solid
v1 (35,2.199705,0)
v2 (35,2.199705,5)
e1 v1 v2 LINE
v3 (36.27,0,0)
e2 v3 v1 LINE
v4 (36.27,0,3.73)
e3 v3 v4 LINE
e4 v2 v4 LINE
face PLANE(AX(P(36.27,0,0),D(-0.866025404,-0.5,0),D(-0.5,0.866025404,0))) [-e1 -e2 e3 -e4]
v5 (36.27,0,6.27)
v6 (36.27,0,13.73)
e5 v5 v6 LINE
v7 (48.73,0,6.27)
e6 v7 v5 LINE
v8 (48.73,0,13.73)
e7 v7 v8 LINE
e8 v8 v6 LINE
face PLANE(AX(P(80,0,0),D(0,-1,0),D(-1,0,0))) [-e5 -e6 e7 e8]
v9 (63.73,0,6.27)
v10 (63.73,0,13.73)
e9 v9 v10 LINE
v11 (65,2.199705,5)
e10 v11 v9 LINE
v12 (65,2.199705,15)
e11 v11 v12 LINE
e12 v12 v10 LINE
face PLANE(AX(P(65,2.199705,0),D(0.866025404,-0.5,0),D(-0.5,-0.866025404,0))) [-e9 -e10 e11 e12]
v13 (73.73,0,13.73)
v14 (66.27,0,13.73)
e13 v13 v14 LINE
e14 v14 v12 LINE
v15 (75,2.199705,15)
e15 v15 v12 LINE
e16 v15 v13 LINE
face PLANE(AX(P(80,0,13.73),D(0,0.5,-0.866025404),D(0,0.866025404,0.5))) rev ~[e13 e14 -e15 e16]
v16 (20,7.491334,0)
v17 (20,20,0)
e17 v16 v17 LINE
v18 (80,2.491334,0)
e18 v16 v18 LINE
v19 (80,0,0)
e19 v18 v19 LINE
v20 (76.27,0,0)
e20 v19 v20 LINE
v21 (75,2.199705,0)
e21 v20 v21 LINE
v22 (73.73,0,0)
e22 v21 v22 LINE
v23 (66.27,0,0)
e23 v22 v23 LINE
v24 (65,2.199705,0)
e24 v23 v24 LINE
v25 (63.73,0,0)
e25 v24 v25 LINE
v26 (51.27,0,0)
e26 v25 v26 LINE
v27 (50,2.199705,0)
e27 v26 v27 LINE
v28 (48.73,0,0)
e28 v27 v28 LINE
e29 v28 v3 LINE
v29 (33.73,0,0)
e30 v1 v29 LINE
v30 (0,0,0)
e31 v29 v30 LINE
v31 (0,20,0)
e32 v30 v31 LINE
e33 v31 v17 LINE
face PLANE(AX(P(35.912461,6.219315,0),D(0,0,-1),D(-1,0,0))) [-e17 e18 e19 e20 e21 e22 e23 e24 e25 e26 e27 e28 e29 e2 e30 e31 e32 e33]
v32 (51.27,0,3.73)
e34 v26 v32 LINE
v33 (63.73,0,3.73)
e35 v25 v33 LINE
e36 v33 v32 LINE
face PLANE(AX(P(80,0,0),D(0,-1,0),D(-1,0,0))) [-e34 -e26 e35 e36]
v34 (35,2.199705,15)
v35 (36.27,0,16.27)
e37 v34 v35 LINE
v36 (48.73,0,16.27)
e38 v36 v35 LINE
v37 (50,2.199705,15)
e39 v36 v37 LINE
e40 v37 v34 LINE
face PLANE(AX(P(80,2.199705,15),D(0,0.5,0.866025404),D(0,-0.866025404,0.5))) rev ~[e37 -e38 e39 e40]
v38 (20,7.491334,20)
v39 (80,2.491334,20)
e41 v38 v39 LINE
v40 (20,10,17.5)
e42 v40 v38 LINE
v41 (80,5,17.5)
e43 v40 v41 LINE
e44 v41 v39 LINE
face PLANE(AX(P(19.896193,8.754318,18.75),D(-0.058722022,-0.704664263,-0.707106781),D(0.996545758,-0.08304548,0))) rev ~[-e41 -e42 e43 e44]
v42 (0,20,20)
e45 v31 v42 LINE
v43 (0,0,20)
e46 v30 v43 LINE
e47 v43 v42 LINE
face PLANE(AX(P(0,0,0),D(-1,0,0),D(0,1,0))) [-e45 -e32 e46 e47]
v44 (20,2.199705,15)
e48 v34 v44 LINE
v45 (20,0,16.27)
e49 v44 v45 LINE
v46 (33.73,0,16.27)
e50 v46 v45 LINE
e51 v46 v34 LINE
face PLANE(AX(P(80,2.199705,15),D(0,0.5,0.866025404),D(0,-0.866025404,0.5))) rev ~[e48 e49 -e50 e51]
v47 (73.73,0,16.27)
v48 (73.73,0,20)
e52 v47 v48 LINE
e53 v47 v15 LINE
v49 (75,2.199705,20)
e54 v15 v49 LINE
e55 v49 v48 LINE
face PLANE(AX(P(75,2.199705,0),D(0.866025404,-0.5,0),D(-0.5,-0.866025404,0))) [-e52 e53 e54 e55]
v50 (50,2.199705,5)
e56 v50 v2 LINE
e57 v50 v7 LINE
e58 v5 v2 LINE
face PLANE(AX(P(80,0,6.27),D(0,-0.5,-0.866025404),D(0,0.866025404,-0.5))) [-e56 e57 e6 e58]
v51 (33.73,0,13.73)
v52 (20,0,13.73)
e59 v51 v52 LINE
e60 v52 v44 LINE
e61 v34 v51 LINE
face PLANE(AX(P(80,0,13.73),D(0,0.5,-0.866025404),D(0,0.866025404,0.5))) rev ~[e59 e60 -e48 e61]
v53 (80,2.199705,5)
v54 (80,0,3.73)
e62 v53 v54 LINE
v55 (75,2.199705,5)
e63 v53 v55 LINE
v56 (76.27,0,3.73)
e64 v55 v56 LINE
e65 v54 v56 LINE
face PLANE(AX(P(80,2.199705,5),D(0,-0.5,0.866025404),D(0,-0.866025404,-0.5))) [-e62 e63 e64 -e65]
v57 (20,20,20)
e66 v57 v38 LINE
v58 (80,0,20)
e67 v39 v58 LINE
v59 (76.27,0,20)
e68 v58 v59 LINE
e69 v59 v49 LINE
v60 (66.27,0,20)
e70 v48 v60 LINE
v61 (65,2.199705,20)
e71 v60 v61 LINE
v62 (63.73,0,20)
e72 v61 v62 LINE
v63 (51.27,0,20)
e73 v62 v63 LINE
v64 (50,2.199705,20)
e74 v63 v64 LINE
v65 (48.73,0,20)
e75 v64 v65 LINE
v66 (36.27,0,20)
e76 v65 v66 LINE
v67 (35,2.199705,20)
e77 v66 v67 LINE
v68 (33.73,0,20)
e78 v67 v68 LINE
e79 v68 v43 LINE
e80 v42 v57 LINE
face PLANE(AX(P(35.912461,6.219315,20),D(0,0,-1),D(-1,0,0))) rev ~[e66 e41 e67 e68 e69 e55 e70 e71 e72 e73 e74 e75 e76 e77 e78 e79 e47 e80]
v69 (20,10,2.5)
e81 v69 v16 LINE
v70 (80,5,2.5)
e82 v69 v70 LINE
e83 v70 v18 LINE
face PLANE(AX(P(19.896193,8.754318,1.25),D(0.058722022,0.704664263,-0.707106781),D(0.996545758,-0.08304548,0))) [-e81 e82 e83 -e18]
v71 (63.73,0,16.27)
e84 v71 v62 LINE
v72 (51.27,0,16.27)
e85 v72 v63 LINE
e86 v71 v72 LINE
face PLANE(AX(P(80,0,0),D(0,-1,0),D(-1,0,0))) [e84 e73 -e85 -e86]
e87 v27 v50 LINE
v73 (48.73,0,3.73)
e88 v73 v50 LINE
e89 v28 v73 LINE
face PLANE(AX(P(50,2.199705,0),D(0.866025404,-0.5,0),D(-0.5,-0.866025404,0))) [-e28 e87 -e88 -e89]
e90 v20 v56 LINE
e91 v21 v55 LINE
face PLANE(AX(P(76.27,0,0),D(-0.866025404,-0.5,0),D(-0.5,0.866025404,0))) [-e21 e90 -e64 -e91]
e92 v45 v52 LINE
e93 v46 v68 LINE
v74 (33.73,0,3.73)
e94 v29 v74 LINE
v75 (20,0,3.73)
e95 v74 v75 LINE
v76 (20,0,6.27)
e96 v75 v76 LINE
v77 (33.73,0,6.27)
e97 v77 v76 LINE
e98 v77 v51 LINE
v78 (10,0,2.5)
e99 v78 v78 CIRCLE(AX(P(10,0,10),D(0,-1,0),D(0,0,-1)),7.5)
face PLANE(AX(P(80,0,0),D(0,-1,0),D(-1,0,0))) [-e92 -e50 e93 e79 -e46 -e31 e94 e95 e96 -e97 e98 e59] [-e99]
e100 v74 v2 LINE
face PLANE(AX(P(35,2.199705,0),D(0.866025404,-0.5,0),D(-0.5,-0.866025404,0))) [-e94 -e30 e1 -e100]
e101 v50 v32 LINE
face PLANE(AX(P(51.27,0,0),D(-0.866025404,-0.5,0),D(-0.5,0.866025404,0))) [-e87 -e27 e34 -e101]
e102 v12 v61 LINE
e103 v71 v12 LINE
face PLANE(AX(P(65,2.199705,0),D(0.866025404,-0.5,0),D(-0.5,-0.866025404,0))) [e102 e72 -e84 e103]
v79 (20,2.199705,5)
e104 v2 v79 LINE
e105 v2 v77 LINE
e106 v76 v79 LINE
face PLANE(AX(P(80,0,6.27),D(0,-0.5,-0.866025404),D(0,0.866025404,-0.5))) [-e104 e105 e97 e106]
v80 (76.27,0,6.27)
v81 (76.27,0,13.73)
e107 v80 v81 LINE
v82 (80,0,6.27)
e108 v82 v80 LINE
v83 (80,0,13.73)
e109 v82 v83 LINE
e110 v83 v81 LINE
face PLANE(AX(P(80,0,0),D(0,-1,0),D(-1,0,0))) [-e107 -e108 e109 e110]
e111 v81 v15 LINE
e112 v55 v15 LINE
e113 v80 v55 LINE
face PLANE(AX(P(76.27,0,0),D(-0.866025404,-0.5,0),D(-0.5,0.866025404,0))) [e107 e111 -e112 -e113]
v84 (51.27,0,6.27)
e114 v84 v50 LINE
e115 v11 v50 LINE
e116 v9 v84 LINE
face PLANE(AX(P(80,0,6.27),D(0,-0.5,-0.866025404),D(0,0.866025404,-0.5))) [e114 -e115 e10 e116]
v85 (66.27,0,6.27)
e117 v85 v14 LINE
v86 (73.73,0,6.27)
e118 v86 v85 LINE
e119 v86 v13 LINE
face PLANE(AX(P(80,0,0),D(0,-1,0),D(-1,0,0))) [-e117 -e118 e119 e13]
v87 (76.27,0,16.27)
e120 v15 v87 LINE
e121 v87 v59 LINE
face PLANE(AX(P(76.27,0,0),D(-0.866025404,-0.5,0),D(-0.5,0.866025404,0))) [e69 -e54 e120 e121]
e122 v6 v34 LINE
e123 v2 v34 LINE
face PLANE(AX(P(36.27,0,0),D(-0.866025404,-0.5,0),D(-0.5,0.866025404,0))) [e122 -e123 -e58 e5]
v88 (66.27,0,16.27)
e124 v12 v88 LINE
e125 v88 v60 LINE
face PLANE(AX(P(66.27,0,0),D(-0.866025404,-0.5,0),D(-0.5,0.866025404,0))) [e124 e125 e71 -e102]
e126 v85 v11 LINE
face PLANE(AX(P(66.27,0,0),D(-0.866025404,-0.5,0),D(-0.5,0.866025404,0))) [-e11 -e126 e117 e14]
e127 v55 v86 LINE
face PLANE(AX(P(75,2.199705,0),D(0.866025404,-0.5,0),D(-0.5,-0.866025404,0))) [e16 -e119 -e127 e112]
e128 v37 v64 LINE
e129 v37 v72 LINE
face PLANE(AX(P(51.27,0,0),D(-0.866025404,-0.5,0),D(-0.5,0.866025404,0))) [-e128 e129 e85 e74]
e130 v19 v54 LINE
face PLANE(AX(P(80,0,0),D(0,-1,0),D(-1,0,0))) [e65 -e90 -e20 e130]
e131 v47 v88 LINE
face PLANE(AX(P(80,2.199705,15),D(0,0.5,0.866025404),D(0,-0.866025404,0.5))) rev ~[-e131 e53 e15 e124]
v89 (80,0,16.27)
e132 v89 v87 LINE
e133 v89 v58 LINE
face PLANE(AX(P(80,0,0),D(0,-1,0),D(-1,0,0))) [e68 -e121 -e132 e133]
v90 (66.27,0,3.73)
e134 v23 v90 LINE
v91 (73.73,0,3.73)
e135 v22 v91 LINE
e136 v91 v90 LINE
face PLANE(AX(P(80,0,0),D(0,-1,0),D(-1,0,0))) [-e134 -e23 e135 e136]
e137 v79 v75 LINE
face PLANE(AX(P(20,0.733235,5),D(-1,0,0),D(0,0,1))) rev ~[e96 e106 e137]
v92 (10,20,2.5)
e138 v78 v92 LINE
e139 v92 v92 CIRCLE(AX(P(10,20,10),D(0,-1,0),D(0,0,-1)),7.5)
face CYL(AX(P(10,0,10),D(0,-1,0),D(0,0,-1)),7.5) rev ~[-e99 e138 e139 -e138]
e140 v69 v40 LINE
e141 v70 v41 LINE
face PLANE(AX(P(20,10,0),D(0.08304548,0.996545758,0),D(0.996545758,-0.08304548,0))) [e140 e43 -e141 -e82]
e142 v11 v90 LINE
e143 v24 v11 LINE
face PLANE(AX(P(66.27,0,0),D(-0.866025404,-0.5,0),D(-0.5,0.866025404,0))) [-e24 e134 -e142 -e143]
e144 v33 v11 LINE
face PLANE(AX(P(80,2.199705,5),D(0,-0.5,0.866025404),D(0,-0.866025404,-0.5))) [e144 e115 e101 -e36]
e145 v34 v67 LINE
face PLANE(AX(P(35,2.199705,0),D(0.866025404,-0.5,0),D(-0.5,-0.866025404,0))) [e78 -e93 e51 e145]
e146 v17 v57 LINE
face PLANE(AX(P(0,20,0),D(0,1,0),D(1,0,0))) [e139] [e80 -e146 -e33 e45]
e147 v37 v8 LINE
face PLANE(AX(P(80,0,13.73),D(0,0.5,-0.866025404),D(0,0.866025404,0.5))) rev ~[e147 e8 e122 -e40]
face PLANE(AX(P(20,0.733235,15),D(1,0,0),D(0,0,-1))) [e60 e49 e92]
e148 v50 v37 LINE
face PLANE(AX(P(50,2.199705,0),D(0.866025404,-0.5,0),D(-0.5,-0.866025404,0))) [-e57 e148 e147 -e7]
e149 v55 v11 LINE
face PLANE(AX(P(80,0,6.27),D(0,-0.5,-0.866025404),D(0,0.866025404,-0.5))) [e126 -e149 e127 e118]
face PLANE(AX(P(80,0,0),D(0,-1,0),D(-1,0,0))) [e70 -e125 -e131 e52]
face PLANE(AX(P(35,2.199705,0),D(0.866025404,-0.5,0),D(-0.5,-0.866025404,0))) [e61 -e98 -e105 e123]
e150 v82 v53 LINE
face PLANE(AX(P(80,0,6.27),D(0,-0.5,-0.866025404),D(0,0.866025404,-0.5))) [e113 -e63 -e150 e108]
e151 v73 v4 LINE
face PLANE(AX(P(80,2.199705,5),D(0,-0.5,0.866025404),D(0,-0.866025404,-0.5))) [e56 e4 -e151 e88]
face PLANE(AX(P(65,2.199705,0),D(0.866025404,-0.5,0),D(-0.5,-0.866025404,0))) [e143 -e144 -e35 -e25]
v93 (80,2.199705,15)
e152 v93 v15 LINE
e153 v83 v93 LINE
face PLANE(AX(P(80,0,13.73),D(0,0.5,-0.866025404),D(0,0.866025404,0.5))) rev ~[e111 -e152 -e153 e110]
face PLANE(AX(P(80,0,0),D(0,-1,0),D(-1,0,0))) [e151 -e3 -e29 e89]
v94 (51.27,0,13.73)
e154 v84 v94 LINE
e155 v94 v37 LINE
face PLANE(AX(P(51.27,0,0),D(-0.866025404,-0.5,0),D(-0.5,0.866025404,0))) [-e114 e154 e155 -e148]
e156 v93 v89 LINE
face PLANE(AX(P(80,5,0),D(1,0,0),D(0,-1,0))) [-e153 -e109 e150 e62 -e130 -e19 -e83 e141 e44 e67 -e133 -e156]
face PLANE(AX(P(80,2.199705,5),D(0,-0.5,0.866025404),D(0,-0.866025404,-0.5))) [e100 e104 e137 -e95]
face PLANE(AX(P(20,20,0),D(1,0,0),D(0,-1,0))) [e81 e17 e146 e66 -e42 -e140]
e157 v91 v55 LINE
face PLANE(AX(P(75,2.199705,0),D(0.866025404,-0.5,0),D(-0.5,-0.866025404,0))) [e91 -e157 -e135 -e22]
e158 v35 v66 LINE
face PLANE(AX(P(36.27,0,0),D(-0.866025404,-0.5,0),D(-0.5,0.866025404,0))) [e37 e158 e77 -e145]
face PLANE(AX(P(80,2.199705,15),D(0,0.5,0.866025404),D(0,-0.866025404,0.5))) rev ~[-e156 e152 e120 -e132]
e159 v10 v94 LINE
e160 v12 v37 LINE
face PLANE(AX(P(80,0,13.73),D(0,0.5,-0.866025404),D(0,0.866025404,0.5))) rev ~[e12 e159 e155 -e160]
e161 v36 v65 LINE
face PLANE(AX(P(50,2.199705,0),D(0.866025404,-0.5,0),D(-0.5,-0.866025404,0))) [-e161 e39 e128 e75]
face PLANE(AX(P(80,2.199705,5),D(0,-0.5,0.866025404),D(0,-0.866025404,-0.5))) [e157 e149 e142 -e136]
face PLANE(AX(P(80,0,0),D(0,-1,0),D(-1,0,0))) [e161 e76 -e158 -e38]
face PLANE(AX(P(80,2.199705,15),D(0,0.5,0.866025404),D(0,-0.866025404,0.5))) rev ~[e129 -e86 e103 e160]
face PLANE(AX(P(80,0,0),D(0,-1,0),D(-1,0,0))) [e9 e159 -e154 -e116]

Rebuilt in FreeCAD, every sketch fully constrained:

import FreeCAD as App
import Part
import Sketcher

V = App.Vector
Q = App.Units.Quantity


def edges_at(feature, points):
    """Names of the edges that pass closest to the given points."""
    edges = feature.Shape.Edges
    near = lambda p: min(range(len(edges)), key=lambda i: edges[i].distToShape(Part.Vertex(*p))[0])
    return sorted({f"Edge{near(p) + 1}" for p in points})

doc = App.newDocument("Part")
body = doc.addObject("PartDesign::Body", "Body")

# Sketch on XY plane
sketch1 = body.newObject("Sketcher::SketchObject", "Sketch")
sketch1.AttachmentSupport = (doc.getObject("XY_Plane"), [""])
sketch1.MapMode = "FlatFace"
sketch1.addGeometry([
    Part.LineSegment(V(0, 20, 0), V(0, 0, 0)),  # 0
    Part.LineSegment(V(0, 0, 0), V(80, 0, 0)),  # 1
    Part.LineSegment(V(80, 0, 0), V(80, 5, 0)),  # 2
    Part.LineSegment(V(80, 5, 0), V(20, 10, 0)),  # 3
    Part.LineSegment(V(20, 10, 0), V(20, 20, 0)),  # 4
    Part.LineSegment(V(20, 20, 0), V(0, 20, 0)),  # 5
], False)
sketch1.addConstraint([
    Sketcher.Constraint("Coincident", 0, 2, 1, 1),
    Sketcher.Constraint("Coincident", 1, 2, 2, 1),
    Sketcher.Constraint("Coincident", 2, 2, 3, 1),
    Sketcher.Constraint("Coincident", 3, 2, 4, 1),
    Sketcher.Constraint("Coincident", 4, 2, 5, 1),
    Sketcher.Constraint("Coincident", 5, 2, 0, 1),
    Sketcher.Constraint("Vertical", 0),
    Sketcher.Constraint("Horizontal", 1),
    Sketcher.Constraint("Vertical", 2),
    Sketcher.Constraint("Vertical", 4),
    Sketcher.Constraint("Horizontal", 5),
    Sketcher.Constraint("Coincident", 0, 2, -1, 1),
    Sketcher.Constraint("Equal", 5, 0),
    Sketcher.Constraint("DistanceX", 1, 1, 1, 2, Q("80 mm")),
    Sketcher.Constraint("DistanceX", 5, 2, 5, 1, Q("20 mm")),
    Sketcher.Constraint("DistanceY", 2, 1, 2, 2, Q("5 mm")),
    Sketcher.Constraint("DistanceY", 4, 1, 4, 2, Q("10 mm")),
])
pad1 = body.newObject("PartDesign::Pad", "Pad")
pad1.Profile = sketch1
pad1.Length = 20
doc.recompute()

chamfer = body.newObject("PartDesign::Chamfer", "Chamfer")
chamfer.Base = (pad1, edges_at(pad1, [(50, 7.5, 20), (50, 7.5, 0)]))
chamfer.Size = 2.5

# Sketch on XZ plane
sketch2 = body.newObject("Sketcher::SketchObject", "Sketch001")
sketch2.AttachmentSupport = (doc.getObject("XZ_Plane"), [""])
sketch2.MapMode = "FlatFace"
sketch2.addGeometry(Part.Circle(V(10, 10, 0), V(0, 0, 1), 8), False)
sketch2.addConstraint([
    Sketcher.Constraint("Diameter", 0, Q("15 mm")),
    Sketcher.Constraint("DistanceX", -1, 1, 0, 3, Q("10 mm")),
    Sketcher.Constraint("DistanceY", -1, 1, 0, 3, Q("10 mm")),
])
pocket1 = body.newObject("PartDesign::Pocket", "Pocket")
pocket1.Profile = sketch2
pocket1.Type = "ThroughAll"

# Sketch on YZ plane
sketch3 = body.newObject("Sketcher::SketchObject", "Sketch002")
sketch3.AttachmentSupport = (doc.getObject("YZ_Plane"), [""])
sketch3.MapMode = "FlatFace"
sketch3.AttachmentOffset = App.Placement(V(0, 0, 80), App.Rotation())
sketch3.addGeometry([
    Part.LineSegment(V(2.2, 15, 0), V(0, 16.3, 0)),  # 0
    Part.LineSegment(V(0, 16.3, 0), V(0, 13.7, 0)),  # 1
    Part.LineSegment(V(0, 13.7, 0), V(2.2, 15, 0)),  # 2
    Part.LineSegment(V(2.2, 5, 0), V(0, 6.3, 0)),  # 3
    Part.LineSegment(V(0, 6.3, 0), V(0, 3.7, 0)),  # 4
    Part.LineSegment(V(0, 3.7, 0), V(2.2, 5, 0)),  # 5
], False)
sketch3.addConstraint([
    Sketcher.Constraint("Coincident", 0, 2, 1, 1),
    Sketcher.Constraint("Coincident", 1, 2, 2, 1),
    Sketcher.Constraint("Coincident", 2, 2, 0, 1),
    Sketcher.Constraint("Coincident", 3, 2, 4, 1),
    Sketcher.Constraint("Coincident", 4, 2, 5, 1),
    Sketcher.Constraint("Coincident", 5, 2, 3, 1),
    Sketcher.Constraint("Vertical", 1),
    Sketcher.Constraint("Vertical", 4),
    Sketcher.Constraint("PointOnObject", 0, 2, -2),
    Sketcher.Constraint("PointOnObject", 3, 2, -2),
    Sketcher.Constraint("Parallel", 0, 3),
    Sketcher.Constraint("Parallel", 2, 5),
    Sketcher.Constraint("Vertical", 2, 2, 5, 2),
    Sketcher.Constraint("Equal", 0, 2),
    Sketcher.Constraint("Angle", 0, Q("150 deg")),
    Sketcher.Constraint("DistanceY", -1, 1, 2, 2, Q("15 mm")),
    Sketcher.Constraint("DistanceY", -1, 1, 5, 2, Q("5 mm")),
    Sketcher.Constraint("DistanceY", 1, 2, 1, 1, Q("2.54 mm")),
])
pocket2 = body.newObject("PartDesign::Pocket", "Pocket001")
pocket2.Profile = sketch3
pocket2.Length = 60

# Sketch on XY plane
sketch4 = body.newObject("Sketcher::SketchObject", "Sketch003")
sketch4.AttachmentSupport = (doc.getObject("XY_Plane"), [""])
sketch4.MapMode = "FlatFace"
sketch4.addGeometry([
    Part.LineSegment(V(75, 2.2, 0), V(73.7, 0, 0)),  # 0
    Part.LineSegment(V(73.7, 0, 0), V(76.3, 0, 0)),  # 1
    Part.LineSegment(V(76.3, 0, 0), V(75, 2.2, 0)),  # 2
    Part.LineSegment(V(65, 2.2, 0), V(63.7, 0, 0)),  # 3
    Part.LineSegment(V(63.7, 0, 0), V(66.3, 0, 0)),  # 4
    Part.LineSegment(V(66.3, 0, 0), V(65, 2.2, 0)),  # 5
    Part.LineSegment(V(50, 2.2, 0), V(48.7, 0, 0)),  # 6
    Part.LineSegment(V(48.7, 0, 0), V(51.3, 0, 0)),  # 7
    Part.LineSegment(V(51.3, 0, 0), V(50, 2.2, 0)),  # 8
    Part.LineSegment(V(35, 2.2, 0), V(33.7, 0, 0)),  # 9
    Part.LineSegment(V(33.7, 0, 0), V(36.3, 0, 0)),  # 10
    Part.LineSegment(V(36.3, 0, 0), V(35, 2.2, 0)),  # 11
], False)
sketch4.addConstraint([
    Sketcher.Constraint("Coincident", 0, 2, 1, 1),
    Sketcher.Constraint("Coincident", 1, 2, 2, 1),
    Sketcher.Constraint("Coincident", 2, 2, 0, 1),
    Sketcher.Constraint("Coincident", 3, 2, 4, 1),
    Sketcher.Constraint("Coincident", 4, 2, 5, 1),
    Sketcher.Constraint("Coincident", 5, 2, 3, 1),
    Sketcher.Constraint("Coincident", 6, 2, 7, 1),
    Sketcher.Constraint("Coincident", 7, 2, 8, 1),
    Sketcher.Constraint("Coincident", 8, 2, 6, 1),
    Sketcher.Constraint("Coincident", 9, 2, 10, 1),
    Sketcher.Constraint("Coincident", 10, 2, 11, 1),
    Sketcher.Constraint("Coincident", 11, 2, 9, 1),
    Sketcher.Constraint("Horizontal", 1),
    Sketcher.Constraint("Horizontal", 4),
    Sketcher.Constraint("Horizontal", 7),
    Sketcher.Constraint("Horizontal", 10),
    Sketcher.Constraint("PointOnObject", 0, 2, -1),
    Sketcher.Constraint("PointOnObject", 3, 2, -1),
    Sketcher.Constraint("PointOnObject", 6, 2, -1),
    Sketcher.Constraint("PointOnObject", 9, 2, -1),
    Sketcher.Constraint("Parallel", 0, 3),
    Sketcher.Constraint("Parallel", 2, 5),
    Sketcher.Constraint("Parallel", 3, 6),
    Sketcher.Constraint("Parallel", 5, 8),
    Sketcher.Constraint("Parallel", 6, 9),
    Sketcher.Constraint("Parallel", 8, 11),
    Sketcher.Constraint("Horizontal", 2, 2, 5, 2),
    Sketcher.Constraint("Horizontal", 5, 2, 8, 2),
    Sketcher.Constraint("Horizontal", 8, 2, 11, 2),
    Sketcher.Constraint("Equal", 0, 2),
    Sketcher.Constraint("Angle", 0, Q("-120 deg")),
    Sketcher.Constraint("DistanceX", -1, 1, 2, 2, Q("75 mm")),
    Sketcher.Constraint("DistanceX", -1, 1, 5, 2, Q("65 mm")),
    Sketcher.Constraint("DistanceX", -1, 1, 8, 2, Q("50 mm")),
    Sketcher.Constraint("DistanceX", -1, 1, 11, 2, Q("35 mm")),
    Sketcher.Constraint("DistanceX", 1, 1, 1, 2, Q("2.54 mm")),
])
pocket3 = body.newObject("PartDesign::Pocket", "Pocket002")
pocket3.Profile = sketch4
pocket3.Type = "ThroughAll"
pocket3.Reversed = True

doc.recompute()
